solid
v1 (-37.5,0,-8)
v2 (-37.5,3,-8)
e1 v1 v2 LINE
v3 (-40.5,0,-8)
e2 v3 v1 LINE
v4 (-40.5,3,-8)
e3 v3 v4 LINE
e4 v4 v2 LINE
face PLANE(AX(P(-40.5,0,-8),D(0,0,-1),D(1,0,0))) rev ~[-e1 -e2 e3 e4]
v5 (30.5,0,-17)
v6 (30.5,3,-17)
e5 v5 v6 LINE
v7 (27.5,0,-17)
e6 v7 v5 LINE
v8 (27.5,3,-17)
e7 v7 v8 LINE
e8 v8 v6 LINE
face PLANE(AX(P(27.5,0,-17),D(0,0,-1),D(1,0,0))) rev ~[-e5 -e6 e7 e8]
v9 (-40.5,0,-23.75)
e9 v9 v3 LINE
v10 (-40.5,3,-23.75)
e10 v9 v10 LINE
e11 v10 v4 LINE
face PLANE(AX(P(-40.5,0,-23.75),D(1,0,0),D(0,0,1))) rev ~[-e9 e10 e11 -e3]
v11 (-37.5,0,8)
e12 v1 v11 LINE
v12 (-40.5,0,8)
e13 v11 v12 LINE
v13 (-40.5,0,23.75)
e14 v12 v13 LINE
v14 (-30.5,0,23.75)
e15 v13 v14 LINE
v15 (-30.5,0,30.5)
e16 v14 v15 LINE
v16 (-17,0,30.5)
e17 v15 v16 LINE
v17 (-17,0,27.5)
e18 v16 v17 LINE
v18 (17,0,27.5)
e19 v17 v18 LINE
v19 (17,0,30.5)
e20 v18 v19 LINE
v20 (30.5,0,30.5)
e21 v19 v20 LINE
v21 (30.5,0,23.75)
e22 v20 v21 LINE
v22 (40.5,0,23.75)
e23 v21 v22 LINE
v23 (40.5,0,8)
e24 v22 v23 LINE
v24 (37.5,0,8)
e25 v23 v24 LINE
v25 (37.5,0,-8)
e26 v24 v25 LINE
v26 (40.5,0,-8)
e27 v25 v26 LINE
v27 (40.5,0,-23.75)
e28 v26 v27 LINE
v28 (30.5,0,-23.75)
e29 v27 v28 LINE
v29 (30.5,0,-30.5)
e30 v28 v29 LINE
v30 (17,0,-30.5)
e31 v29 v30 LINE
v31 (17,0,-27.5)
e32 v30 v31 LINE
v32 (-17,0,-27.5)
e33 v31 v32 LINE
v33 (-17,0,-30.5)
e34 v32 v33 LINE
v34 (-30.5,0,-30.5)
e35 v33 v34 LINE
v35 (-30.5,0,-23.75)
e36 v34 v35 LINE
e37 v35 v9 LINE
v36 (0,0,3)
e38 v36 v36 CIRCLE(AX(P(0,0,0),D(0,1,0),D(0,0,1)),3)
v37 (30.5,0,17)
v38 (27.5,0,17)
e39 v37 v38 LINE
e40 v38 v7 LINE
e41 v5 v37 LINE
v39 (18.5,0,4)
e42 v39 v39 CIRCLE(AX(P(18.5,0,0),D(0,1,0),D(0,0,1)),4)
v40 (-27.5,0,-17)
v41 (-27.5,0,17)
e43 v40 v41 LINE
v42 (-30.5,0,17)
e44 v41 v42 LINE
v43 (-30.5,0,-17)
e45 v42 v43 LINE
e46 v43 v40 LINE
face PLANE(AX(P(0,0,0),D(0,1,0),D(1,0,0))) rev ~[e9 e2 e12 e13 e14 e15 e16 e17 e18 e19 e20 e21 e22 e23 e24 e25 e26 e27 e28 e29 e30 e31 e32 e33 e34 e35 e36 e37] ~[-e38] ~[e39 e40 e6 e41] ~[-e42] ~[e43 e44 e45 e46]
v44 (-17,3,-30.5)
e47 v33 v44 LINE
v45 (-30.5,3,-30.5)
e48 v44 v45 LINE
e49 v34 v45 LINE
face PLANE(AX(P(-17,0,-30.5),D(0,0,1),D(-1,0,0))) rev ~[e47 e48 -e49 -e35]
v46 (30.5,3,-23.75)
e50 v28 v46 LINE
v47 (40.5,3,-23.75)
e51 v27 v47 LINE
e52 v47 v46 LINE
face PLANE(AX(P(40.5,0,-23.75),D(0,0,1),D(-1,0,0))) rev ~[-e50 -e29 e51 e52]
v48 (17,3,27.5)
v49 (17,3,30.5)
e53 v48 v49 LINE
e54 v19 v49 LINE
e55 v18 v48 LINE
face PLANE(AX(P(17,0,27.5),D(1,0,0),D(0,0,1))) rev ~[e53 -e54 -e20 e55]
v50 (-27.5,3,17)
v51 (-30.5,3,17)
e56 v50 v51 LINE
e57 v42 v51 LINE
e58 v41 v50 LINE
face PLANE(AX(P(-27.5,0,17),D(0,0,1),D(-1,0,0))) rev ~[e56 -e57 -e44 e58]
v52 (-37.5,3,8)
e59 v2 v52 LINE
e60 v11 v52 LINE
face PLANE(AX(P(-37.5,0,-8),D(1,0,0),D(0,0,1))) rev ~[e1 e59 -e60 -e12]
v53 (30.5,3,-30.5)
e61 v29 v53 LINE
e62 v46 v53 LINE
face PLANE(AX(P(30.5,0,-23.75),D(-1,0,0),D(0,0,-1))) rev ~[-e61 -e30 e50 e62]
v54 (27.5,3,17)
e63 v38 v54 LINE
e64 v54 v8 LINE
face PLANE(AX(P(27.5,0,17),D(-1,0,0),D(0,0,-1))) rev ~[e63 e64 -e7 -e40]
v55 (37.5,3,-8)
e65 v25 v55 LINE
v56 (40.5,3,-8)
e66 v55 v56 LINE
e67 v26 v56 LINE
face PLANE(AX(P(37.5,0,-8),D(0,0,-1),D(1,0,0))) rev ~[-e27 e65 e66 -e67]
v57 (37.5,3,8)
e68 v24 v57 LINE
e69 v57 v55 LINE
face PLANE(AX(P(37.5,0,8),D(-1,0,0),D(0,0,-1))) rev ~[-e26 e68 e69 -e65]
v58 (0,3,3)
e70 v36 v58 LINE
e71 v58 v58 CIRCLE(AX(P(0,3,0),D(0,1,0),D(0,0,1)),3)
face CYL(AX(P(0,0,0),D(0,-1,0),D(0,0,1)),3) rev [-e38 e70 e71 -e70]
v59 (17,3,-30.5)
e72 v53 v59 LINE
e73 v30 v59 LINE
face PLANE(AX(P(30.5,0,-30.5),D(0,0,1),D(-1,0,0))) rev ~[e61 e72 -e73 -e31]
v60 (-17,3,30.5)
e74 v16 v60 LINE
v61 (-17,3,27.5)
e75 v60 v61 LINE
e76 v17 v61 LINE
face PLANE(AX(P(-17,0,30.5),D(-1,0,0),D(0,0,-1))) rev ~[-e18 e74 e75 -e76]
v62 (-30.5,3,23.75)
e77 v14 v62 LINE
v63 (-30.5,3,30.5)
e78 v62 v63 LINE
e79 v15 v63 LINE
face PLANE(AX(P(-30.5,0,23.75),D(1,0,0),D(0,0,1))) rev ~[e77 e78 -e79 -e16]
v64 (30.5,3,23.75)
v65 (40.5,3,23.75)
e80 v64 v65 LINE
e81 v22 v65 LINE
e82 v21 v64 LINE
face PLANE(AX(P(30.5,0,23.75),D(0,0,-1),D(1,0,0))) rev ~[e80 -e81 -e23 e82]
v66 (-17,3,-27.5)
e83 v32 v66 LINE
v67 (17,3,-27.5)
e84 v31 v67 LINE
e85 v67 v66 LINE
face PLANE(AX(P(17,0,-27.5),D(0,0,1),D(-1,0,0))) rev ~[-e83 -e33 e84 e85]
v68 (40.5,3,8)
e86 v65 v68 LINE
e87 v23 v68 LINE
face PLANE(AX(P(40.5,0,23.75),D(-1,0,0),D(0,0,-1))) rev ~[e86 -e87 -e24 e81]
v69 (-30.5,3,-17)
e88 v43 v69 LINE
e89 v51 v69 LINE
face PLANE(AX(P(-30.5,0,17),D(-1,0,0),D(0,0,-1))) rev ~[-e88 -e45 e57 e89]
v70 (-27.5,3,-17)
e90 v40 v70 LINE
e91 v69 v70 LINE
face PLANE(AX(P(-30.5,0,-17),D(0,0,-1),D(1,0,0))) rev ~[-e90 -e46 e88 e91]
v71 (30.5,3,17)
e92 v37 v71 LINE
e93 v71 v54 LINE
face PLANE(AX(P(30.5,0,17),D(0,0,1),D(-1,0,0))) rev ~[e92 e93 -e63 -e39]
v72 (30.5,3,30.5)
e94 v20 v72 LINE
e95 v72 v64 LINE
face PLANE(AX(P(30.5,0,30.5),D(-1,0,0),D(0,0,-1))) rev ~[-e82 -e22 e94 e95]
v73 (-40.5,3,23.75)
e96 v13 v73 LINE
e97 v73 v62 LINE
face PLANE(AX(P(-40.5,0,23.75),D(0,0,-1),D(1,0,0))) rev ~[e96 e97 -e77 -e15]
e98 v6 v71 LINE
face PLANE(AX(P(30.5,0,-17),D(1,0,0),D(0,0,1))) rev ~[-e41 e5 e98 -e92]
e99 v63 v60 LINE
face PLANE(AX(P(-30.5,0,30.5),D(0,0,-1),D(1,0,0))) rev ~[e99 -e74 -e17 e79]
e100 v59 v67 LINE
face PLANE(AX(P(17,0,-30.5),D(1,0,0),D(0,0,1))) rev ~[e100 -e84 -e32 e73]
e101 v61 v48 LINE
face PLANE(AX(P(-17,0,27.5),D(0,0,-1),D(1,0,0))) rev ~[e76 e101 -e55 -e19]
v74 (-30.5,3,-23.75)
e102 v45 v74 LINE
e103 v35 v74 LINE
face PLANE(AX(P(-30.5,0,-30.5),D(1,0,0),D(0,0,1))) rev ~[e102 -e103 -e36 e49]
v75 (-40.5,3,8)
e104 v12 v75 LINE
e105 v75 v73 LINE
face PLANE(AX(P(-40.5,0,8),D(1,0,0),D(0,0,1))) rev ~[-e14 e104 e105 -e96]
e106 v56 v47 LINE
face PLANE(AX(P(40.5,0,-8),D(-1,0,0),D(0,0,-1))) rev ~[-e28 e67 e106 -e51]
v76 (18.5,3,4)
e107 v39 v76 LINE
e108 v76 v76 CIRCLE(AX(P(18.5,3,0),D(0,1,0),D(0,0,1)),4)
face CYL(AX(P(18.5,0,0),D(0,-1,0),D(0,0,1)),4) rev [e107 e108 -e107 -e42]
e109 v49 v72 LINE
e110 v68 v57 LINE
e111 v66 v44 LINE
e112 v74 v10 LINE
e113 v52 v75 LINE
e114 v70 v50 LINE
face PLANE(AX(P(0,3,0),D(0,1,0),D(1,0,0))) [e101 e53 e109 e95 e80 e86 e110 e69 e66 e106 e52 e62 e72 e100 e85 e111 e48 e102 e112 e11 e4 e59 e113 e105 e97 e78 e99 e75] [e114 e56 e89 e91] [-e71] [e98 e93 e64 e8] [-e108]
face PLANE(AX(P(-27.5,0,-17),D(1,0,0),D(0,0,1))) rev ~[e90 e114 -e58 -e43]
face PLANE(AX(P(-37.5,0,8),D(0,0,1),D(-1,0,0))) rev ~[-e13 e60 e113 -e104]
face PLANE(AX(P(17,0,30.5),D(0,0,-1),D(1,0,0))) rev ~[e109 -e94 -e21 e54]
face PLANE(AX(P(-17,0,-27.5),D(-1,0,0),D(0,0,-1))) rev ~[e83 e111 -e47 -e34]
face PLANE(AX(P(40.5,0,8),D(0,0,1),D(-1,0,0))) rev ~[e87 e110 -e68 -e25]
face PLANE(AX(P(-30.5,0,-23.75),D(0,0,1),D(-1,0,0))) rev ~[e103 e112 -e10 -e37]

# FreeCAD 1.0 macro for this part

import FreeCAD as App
import Part
import Sketcher
from FreeCAD import Vector


def add_polygon(sketch, points):
    """Adds a closed chain of lines whose ends are joined by coincident constraints."""
    first, n = sketch.GeometryCount, len(points)
    for a, b in zip(points, points[1:] + points[:1]):
        sketch.addGeometry(Part.LineSegment(App.Vector(*a, 0), App.Vector(*b, 0)), False)
    for i in range(n):
        sketch.addConstraint(Sketcher.Constraint("Coincident", first + i, 2, first + (i + 1) % n, 1))

doc = App.newDocument("Part")
params = doc.addObject("Spreadsheet::Sheet", "Params")
for row, (alias, value) in enumerate([
    ("sketch1_diameter", "6 mm"),
    ("sketch1_diameter2", "8 mm"),
    ("sketch1_width", "34 mm"),
    ("sketch1_width2", "10 mm"),
    ("sketch1_width3", "3 mm"),
    ("pad1_length", "3 mm"),
], start=1):
    params.set(f"A{row}", alias)
    params.set(f"B{row}", "=" + value)
    params.setAlias(f"B{row}", alias)

body = doc.addObject("PartDesign::Body", "Body")

sketch1 = body.newObject("Sketcher::SketchObject", "Sketch")
sketch1.AttachmentSupport = (doc.getObject("XZ_Plane"), [""])
sketch1.MapMode = "FlatFace"
add_polygon(sketch1, [(17, -27.5), (-17, -27.5), (-17, -30.5), (-30.5, -30.5), (-30.5, -23.8), (-40.5, -23.8), (-40.5, -8), (-37.5, -8), (-37.5, 8), (-40.5, 8), (-40.5, 23.8), (-30.5, 23.8), (-30.5, 30.5), (-17, 30.5), (-17, 27.5), (17, 27.5), (17, 30.5), (30.5, 30.5), (30.5, 23.8), (40.5, 23.8), (40.5, 8), (37.5, 8), (37.5, -8), (40.5, -8), (40.5, -23.8), (30.5, -23.8), (30.5, -30.5), (17, -30.5)])
add_polygon(sketch1, [(-30.5, -17), (-27.5, -17), (-27.5, 17), (-30.5, 17)])
sketch1.addGeometry(Part.Circle(Vector(0, 0, 0), Vector(0, 0, 1), 3), False)
sketch1.addGeometry(Part.Circle(Vector(18.5, 0, 0), Vector(0, 0, 1), 4), False)
add_polygon(sketch1, [(27.5, -17), (30.5, -17), (30.5, 17), (27.5, 17)])
sketch1.addConstraint([
    Sketcher.Constraint("Horizontal", 0),
    Sketcher.Constraint("Vertical", 1),
    Sketcher.Constraint("Horizontal", 2),
    Sketcher.Constraint("Vertical", 3),
    Sketcher.Constraint("Horizontal", 4),
    Sketcher.Constraint("Vertical", 5),
    Sketcher.Constraint("Horizontal", 6),
    Sketcher.Constraint("Vertical", 7),
    Sketcher.Constraint("Horizontal", 8),
    Sketcher.Constraint("Vertical", 9),
    Sketcher.Constraint("Horizontal", 10),
    Sketcher.Constraint("Vertical", 11),
    Sketcher.Constraint("Horizontal", 12),
    Sketcher.Constraint("Vertical", 13),
    Sketcher.Constraint("Horizontal", 14),
    Sketcher.Constraint("Vertical", 15),
    Sketcher.Constraint("Horizontal", 16),
    Sketcher.Constraint("Vertical", 17),
    Sketcher.Constraint("Horizontal", 18),
    Sketcher.Constraint("Vertical", 19),
    Sketcher.Constraint("Horizontal", 20),
    Sketcher.Constraint("Vertical", 21),
    Sketcher.Constraint("Horizontal", 22),
    Sketcher.Constraint("Vertical", 23),
    Sketcher.Constraint("Horizontal", 24),
    Sketcher.Constraint("Vertical", 25),
    Sketcher.Constraint("Horizontal", 26),
    Sketcher.Constraint("Vertical", 27),
    Sketcher.Constraint("Horizontal", 28),
    Sketcher.Constraint("Vertical", 29),
    Sketcher.Constraint("Horizontal", 30),
    Sketcher.Constraint("Vertical", 31),
    Sketcher.Constraint("Horizontal", 34),
    Sketcher.Constraint("Vertical", 35),
    Sketcher.Constraint("Horizontal", 36),
    Sketcher.Constraint("Vertical", 37),
    Sketcher.Constraint("Coincident", 32, 3, -1, 1),
    Sketcher.Constraint("Symmetric", 0, 2, 14, 2, -1, 1),
    Sketcher.Constraint("Symmetric", 2, 2, 16, 2, -1, 1),
    Sketcher.Constraint("Symmetric", 4, 2, 18, 2, -1, 1),
    Sketcher.Constraint("Symmetric", 6, 2, 20, 2, -1, 1),
    Sketcher.Constraint("Symmetric", 8, 2, 22, 2, -1, 1),
    Sketcher.Constraint("Symmetric", 10, 2, 24, 2, -1, 1),
    Sketcher.Constraint("Symmetric", 12, 2, 26, 2, -1, 1),
    Sketcher.Constraint("Symmetric", 30, 2, 34, 2, -1, 1),
    Sketcher.Constraint("Symmetric", 28, 2, 36, 2, -1, 1),
    Sketcher.Constraint("Symmetric", 12, 2, 15, 2, -2),
    Sketcher.Constraint("Symmetric", 10, 2, 17, 2, -2),
    Sketcher.Constraint("Symmetric", 8, 2, 19, 2, -2),
    Sketcher.Constraint("PointOnObject", 33, 3, -1),
    Sketcher.Constraint("Horizontal", 31, 2, 34, 2),
    Sketcher.Constraint("Vertical", 11, 2, 30, 2),
    Sketcher.Constraint("Equal", 22, 28),
    Sketcher.Constraint("Equal", 36, 1),
    Sketcher.Constraint("Equal", 14, 29),
    Sketcher.Constraint("Diameter", 32, 6.0),
    Sketcher.Constraint("Diameter", 33, 8.0),
    Sketcher.Constraint("DistanceX", 0, 2, 0, 1, 34.0),
    Sketcher.Constraint("DistanceX", 4, 2, 4, 1, 10.0),
    Sketcher.Constraint("DistanceX", 6, 1, 6, 2, 3.0),
    Sketcher.Constraint("DistanceY", 7, 1, 7, 2, 16.0),
    Sketcher.Constraint("DistanceX", 2, 2, 2, 1, 13.5),
    Sketcher.Constraint("DistanceX", 2, 2, 33, 3, 49.0),
    Sketcher.Constraint("DistanceY", 3, 1, 3, 2, 6.75),
    Sketcher.Constraint("DistanceY", 5, 1, 5, 2, 15.75),
])
sketch1.setExpression("Constraints[91]", "Params.sketch1_diameter")
sketch1.setExpression("Constraints[92]", "Params.sketch1_diameter2")
sketch1.setExpression("Constraints[93]", "Params.sketch1_width")
sketch1.setExpression("Constraints[94]", "Params.sketch1_width2")
sketch1.setExpression("Constraints[95]", "Params.sketch1_width3")
pad1 = body.newObject("PartDesign::Pad", "Pad")
pad1.Profile = sketch1
pad1.setExpression("Length", "Params.pad1_length")
pad1.Reversed = True

doc.recompute()
